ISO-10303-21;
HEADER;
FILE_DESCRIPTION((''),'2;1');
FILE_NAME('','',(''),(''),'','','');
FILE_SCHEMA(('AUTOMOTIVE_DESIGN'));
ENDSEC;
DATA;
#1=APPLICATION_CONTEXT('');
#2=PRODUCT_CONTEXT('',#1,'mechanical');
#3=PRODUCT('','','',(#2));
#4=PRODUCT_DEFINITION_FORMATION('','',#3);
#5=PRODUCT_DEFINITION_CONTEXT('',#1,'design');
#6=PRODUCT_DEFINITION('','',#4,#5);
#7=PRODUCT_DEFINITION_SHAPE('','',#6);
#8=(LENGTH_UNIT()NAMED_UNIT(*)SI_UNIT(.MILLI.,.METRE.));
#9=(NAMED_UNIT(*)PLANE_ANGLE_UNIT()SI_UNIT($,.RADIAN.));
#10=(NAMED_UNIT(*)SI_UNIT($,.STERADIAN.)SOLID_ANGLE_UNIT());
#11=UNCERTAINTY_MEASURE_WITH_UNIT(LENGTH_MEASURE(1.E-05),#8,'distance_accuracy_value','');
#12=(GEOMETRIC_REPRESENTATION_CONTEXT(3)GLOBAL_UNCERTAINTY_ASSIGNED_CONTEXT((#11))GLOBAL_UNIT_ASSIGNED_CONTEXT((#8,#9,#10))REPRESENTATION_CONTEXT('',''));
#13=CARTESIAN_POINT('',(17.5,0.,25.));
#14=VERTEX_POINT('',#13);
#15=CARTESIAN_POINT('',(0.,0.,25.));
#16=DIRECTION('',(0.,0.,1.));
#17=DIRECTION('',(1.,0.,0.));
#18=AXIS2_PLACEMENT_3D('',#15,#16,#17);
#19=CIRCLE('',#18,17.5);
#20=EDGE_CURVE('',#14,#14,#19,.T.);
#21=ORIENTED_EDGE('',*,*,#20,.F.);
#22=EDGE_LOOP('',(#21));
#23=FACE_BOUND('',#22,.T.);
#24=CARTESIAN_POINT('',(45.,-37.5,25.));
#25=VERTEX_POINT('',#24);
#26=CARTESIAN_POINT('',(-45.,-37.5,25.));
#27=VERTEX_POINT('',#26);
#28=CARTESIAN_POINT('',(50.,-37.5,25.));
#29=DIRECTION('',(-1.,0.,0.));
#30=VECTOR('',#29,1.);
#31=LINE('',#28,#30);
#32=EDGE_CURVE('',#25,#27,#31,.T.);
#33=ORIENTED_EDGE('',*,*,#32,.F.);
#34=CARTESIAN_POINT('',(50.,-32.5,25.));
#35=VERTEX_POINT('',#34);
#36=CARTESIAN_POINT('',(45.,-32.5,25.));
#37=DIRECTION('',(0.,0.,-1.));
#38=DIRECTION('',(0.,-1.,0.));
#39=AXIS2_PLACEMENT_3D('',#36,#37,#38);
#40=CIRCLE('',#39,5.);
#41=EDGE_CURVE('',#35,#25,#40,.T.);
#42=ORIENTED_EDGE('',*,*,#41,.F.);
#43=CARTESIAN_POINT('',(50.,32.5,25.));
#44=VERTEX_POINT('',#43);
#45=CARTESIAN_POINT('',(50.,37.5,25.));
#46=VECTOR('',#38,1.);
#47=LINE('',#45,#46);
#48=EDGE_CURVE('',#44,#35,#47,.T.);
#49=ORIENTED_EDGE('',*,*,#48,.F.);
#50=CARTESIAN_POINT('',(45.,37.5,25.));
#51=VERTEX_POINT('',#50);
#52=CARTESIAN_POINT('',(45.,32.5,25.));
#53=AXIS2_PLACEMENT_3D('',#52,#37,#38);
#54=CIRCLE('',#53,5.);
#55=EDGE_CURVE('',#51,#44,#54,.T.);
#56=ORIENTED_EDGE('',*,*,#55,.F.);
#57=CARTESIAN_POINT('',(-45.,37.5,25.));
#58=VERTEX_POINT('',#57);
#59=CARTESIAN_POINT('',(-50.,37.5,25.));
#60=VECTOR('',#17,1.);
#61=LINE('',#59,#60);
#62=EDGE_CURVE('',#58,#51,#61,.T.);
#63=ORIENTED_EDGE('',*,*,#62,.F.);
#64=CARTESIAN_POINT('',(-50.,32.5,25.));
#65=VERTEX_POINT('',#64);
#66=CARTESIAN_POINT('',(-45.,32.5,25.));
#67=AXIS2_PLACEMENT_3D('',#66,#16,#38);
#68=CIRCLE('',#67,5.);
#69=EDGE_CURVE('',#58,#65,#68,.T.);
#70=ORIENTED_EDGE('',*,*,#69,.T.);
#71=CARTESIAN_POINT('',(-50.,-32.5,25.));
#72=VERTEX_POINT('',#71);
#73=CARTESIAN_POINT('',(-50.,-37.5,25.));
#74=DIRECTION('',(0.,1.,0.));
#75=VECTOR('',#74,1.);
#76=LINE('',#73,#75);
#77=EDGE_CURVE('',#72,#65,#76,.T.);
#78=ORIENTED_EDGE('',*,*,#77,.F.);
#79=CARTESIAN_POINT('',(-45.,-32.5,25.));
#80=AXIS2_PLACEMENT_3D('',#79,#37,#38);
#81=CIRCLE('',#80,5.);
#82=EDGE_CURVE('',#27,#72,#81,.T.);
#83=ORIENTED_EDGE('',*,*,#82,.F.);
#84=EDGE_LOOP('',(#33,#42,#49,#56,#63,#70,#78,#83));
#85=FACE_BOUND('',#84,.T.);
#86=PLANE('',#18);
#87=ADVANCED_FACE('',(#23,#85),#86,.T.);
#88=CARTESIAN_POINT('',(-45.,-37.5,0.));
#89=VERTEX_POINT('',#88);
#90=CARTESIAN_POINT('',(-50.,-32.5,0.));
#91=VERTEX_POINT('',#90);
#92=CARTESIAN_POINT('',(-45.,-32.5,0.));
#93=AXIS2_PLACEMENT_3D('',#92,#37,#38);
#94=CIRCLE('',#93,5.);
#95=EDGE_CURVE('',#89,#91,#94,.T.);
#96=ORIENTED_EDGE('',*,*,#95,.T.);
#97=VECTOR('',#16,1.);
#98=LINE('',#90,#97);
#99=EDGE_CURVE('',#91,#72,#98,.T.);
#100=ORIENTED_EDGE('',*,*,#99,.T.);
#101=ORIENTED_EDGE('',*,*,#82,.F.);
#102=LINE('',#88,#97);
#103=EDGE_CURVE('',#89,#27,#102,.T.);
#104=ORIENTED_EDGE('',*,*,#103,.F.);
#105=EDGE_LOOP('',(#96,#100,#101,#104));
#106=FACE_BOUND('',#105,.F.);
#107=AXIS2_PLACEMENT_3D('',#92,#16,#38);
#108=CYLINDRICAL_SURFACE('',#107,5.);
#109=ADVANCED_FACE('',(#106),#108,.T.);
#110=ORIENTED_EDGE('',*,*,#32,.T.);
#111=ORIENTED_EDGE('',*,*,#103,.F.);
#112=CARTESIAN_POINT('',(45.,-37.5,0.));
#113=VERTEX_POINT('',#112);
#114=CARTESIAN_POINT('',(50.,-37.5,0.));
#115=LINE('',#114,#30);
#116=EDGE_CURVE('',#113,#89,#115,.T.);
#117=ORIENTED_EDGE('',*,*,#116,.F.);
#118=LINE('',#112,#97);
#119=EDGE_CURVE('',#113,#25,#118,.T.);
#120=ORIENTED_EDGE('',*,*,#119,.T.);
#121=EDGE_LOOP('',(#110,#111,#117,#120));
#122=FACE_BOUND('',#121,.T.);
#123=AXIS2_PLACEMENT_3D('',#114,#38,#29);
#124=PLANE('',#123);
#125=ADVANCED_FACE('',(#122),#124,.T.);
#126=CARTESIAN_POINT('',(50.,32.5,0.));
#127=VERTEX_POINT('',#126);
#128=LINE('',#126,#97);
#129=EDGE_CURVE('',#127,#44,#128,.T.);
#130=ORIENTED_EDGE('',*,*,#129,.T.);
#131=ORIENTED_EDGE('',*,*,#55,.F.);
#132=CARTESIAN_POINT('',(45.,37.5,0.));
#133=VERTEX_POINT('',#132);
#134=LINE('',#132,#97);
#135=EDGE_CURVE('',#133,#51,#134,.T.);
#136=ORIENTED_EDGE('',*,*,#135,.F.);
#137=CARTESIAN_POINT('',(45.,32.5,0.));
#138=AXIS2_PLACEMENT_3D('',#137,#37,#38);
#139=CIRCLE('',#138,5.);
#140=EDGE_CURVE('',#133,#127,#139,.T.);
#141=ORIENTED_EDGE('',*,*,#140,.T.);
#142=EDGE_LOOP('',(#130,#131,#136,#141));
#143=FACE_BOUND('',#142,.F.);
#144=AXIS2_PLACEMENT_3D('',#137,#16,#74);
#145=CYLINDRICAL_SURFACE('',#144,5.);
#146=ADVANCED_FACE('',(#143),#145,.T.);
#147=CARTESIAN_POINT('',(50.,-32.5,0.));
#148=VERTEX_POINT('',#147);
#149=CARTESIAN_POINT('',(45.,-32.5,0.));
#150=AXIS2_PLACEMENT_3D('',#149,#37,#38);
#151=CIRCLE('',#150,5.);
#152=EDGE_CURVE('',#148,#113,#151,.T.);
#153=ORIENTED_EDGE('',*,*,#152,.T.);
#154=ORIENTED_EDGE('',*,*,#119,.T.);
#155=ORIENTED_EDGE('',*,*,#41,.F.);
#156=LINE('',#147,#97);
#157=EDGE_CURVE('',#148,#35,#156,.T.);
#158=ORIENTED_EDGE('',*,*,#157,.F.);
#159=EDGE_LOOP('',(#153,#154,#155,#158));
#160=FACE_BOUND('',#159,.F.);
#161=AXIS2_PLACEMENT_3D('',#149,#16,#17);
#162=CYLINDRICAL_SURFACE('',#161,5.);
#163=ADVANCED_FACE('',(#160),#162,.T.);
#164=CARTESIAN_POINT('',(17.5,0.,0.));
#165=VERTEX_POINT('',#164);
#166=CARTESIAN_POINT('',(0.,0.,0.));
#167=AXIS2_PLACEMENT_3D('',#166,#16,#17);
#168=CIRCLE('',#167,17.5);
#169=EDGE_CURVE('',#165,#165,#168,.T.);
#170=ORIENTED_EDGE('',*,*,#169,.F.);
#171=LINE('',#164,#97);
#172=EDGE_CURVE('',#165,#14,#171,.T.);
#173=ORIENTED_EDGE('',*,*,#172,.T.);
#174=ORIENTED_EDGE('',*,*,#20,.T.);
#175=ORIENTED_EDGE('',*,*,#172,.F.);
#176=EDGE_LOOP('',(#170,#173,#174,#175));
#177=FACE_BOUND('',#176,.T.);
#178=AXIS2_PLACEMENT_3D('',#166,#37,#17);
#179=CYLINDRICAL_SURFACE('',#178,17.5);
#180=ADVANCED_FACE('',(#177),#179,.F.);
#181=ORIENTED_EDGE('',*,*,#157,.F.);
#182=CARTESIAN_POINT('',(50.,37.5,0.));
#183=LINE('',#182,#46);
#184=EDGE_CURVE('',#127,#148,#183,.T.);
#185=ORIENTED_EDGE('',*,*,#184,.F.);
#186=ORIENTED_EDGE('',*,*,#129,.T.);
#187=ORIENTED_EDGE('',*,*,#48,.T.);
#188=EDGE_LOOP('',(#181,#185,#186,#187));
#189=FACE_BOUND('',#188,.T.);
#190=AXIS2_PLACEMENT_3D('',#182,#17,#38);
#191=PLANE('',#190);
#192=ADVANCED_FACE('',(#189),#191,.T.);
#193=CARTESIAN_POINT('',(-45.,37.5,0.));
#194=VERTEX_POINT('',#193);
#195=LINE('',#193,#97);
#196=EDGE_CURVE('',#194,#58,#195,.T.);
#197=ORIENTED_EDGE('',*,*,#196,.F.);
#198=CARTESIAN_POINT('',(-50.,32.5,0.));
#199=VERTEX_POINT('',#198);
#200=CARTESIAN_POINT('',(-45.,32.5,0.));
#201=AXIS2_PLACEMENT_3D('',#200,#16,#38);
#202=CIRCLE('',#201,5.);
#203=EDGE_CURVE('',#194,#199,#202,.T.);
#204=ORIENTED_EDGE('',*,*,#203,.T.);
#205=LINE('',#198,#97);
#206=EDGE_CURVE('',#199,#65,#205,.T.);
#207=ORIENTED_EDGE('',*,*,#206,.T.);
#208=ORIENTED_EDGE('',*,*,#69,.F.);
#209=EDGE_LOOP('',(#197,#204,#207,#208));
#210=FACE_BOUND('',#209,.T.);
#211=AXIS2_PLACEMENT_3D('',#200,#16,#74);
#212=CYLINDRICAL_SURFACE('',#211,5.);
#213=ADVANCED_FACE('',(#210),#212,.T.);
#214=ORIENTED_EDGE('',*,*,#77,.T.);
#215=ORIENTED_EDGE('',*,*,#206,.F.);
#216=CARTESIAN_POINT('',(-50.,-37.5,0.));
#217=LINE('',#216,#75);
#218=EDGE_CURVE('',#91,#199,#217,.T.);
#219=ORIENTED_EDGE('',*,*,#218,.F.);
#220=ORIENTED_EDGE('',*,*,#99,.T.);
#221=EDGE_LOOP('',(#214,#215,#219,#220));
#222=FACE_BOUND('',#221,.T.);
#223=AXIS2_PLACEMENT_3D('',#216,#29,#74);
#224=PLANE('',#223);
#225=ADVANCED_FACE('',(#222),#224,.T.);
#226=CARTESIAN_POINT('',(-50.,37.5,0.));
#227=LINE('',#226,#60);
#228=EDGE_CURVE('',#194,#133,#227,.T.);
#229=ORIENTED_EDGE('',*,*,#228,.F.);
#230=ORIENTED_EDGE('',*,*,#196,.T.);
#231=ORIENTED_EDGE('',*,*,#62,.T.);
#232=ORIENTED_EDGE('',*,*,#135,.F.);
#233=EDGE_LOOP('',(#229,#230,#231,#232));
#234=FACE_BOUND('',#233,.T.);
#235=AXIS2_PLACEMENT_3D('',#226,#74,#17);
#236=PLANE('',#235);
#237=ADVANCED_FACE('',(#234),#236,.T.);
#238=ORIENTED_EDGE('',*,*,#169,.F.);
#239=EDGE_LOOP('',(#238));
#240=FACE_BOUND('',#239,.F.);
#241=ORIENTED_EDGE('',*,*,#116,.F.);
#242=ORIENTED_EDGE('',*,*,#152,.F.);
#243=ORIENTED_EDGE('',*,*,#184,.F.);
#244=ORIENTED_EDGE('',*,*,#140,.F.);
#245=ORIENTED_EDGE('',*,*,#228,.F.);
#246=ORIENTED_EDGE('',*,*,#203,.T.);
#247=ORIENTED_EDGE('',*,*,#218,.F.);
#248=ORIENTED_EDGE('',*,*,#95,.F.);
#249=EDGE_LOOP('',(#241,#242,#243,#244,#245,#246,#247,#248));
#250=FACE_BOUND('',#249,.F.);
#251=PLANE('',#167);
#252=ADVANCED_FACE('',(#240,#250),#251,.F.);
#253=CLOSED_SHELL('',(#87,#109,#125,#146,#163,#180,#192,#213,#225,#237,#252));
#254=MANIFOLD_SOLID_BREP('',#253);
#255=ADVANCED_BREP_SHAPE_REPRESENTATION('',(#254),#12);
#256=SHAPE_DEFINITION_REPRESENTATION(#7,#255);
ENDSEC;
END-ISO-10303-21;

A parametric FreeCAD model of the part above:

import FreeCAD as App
import Part
import Sketcher
from FreeCAD import Vector


def edges_at(feature, points):
    """Names of the edges that pass closest to the given points."""
    edges = feature.Shape.Edges
    near = lambda p: min(range(len(edges)), key=lambda i: edges[i].distToShape(Part.Vertex(*p))[0])
    return sorted({f"Edge{near(p) + 1}" for p in points})


def add_polygon(sketch, points):
    """Adds a closed chain of lines whose ends are joined by coincident constraints."""
    first, n = sketch.GeometryCount, len(points)
    for a, b in zip(points, points[1:] + points[:1]):
        sketch.addGeometry(Part.LineSegment(App.Vector(*a, 0), App.Vector(*b, 0)), False)
    for i in range(n):
        sketch.addConstraint(Sketcher.Constraint("Coincident", first + i, 2, first + (i + 1) % n, 1))

doc = App.newDocument("Part")
params = doc.addObject("Spreadsheet::Sheet", "Params")
for row, (alias, value) in enumerate([
    ("sketch1_diameter", "35 mm"),
    ("sketch1_width", "100 mm"),
    ("sketch1_height", "75 mm"),
    ("pad1_length", "25 mm"),
    ("fillet_radius", "5 mm"),
], start=1):
    params.set(f"A{row}", alias)
    params.set(f"B{row}", "=" + value)
    params.setAlias(f"B{row}", alias)

body = doc.addObject("PartDesign::Body", "Body")

sketch1 = body.newObject("Sketcher::SketchObject", "Sketch")
sketch1.AttachmentSupport = (doc.getObject("XY_Plane"), [""])
sketch1.MapMode = "FlatFace"
add_polygon(sketch1, [(50, 38), (-50, 38), (-50, -38), (50, -38)])
sketch1.addGeometry(Part.Circle(Vector(0, 0, 0), Vector(0, 0, 1), 18), False)
sketch1.addConstraint(Sketcher.Constraint("Horizontal", 0))
sketch1.addConstraint(Sketcher.Constraint("Vertical", 1))
sketch1.addConstraint(Sketcher.Constraint("Horizontal", 2))
sketch1.addConstraint(Sketcher.Constraint("Vertical", 3))
sketch1.addConstraint(Sketcher.Constraint("Coincident", 4, 3, -1, 1))
sketch1.addConstraint(Sketcher.Constraint("Symmetric", 0, 2, 2, 2, -1, 1))
sketch1.addConstraint(Sketcher.Constraint("Diameter", 4, 35.0))
sketch1.addConstraint(Sketcher.Constraint("DistanceX", 0, 2, 0, 1, 100.0))
sketch1.addConstraint(Sketcher.Constraint("DistanceY", 1, 2, 1, 1, 75.0))
sketch1.setExpression("Constraints[10]", "Params.sketch1_diameter")
sketch1.setExpression("Constraints[11]", "Params.sketch1_width")
sketch1.setExpression("Constraints[12]", "Params.sketch1_height")
pad1 = body.newObject("PartDesign::Pad", "Pad")
pad1.Profile = sketch1
pad1.setExpression("Length", "Params.pad1_length")
doc.recompute()

fillet = body.newObject("PartDesign::Fillet", "Fillet")
fillet.Base = (pad1, edges_at(pad1, [
    (50, -37.5, 12.5),
    (50, 37.5, 12.5),
    (-50, 37.5, 12.5),
    (-50, -37.5, 12.5),
]))
fillet.setExpression("Radius", "Params.fillet_radius")

doc.recompute()
